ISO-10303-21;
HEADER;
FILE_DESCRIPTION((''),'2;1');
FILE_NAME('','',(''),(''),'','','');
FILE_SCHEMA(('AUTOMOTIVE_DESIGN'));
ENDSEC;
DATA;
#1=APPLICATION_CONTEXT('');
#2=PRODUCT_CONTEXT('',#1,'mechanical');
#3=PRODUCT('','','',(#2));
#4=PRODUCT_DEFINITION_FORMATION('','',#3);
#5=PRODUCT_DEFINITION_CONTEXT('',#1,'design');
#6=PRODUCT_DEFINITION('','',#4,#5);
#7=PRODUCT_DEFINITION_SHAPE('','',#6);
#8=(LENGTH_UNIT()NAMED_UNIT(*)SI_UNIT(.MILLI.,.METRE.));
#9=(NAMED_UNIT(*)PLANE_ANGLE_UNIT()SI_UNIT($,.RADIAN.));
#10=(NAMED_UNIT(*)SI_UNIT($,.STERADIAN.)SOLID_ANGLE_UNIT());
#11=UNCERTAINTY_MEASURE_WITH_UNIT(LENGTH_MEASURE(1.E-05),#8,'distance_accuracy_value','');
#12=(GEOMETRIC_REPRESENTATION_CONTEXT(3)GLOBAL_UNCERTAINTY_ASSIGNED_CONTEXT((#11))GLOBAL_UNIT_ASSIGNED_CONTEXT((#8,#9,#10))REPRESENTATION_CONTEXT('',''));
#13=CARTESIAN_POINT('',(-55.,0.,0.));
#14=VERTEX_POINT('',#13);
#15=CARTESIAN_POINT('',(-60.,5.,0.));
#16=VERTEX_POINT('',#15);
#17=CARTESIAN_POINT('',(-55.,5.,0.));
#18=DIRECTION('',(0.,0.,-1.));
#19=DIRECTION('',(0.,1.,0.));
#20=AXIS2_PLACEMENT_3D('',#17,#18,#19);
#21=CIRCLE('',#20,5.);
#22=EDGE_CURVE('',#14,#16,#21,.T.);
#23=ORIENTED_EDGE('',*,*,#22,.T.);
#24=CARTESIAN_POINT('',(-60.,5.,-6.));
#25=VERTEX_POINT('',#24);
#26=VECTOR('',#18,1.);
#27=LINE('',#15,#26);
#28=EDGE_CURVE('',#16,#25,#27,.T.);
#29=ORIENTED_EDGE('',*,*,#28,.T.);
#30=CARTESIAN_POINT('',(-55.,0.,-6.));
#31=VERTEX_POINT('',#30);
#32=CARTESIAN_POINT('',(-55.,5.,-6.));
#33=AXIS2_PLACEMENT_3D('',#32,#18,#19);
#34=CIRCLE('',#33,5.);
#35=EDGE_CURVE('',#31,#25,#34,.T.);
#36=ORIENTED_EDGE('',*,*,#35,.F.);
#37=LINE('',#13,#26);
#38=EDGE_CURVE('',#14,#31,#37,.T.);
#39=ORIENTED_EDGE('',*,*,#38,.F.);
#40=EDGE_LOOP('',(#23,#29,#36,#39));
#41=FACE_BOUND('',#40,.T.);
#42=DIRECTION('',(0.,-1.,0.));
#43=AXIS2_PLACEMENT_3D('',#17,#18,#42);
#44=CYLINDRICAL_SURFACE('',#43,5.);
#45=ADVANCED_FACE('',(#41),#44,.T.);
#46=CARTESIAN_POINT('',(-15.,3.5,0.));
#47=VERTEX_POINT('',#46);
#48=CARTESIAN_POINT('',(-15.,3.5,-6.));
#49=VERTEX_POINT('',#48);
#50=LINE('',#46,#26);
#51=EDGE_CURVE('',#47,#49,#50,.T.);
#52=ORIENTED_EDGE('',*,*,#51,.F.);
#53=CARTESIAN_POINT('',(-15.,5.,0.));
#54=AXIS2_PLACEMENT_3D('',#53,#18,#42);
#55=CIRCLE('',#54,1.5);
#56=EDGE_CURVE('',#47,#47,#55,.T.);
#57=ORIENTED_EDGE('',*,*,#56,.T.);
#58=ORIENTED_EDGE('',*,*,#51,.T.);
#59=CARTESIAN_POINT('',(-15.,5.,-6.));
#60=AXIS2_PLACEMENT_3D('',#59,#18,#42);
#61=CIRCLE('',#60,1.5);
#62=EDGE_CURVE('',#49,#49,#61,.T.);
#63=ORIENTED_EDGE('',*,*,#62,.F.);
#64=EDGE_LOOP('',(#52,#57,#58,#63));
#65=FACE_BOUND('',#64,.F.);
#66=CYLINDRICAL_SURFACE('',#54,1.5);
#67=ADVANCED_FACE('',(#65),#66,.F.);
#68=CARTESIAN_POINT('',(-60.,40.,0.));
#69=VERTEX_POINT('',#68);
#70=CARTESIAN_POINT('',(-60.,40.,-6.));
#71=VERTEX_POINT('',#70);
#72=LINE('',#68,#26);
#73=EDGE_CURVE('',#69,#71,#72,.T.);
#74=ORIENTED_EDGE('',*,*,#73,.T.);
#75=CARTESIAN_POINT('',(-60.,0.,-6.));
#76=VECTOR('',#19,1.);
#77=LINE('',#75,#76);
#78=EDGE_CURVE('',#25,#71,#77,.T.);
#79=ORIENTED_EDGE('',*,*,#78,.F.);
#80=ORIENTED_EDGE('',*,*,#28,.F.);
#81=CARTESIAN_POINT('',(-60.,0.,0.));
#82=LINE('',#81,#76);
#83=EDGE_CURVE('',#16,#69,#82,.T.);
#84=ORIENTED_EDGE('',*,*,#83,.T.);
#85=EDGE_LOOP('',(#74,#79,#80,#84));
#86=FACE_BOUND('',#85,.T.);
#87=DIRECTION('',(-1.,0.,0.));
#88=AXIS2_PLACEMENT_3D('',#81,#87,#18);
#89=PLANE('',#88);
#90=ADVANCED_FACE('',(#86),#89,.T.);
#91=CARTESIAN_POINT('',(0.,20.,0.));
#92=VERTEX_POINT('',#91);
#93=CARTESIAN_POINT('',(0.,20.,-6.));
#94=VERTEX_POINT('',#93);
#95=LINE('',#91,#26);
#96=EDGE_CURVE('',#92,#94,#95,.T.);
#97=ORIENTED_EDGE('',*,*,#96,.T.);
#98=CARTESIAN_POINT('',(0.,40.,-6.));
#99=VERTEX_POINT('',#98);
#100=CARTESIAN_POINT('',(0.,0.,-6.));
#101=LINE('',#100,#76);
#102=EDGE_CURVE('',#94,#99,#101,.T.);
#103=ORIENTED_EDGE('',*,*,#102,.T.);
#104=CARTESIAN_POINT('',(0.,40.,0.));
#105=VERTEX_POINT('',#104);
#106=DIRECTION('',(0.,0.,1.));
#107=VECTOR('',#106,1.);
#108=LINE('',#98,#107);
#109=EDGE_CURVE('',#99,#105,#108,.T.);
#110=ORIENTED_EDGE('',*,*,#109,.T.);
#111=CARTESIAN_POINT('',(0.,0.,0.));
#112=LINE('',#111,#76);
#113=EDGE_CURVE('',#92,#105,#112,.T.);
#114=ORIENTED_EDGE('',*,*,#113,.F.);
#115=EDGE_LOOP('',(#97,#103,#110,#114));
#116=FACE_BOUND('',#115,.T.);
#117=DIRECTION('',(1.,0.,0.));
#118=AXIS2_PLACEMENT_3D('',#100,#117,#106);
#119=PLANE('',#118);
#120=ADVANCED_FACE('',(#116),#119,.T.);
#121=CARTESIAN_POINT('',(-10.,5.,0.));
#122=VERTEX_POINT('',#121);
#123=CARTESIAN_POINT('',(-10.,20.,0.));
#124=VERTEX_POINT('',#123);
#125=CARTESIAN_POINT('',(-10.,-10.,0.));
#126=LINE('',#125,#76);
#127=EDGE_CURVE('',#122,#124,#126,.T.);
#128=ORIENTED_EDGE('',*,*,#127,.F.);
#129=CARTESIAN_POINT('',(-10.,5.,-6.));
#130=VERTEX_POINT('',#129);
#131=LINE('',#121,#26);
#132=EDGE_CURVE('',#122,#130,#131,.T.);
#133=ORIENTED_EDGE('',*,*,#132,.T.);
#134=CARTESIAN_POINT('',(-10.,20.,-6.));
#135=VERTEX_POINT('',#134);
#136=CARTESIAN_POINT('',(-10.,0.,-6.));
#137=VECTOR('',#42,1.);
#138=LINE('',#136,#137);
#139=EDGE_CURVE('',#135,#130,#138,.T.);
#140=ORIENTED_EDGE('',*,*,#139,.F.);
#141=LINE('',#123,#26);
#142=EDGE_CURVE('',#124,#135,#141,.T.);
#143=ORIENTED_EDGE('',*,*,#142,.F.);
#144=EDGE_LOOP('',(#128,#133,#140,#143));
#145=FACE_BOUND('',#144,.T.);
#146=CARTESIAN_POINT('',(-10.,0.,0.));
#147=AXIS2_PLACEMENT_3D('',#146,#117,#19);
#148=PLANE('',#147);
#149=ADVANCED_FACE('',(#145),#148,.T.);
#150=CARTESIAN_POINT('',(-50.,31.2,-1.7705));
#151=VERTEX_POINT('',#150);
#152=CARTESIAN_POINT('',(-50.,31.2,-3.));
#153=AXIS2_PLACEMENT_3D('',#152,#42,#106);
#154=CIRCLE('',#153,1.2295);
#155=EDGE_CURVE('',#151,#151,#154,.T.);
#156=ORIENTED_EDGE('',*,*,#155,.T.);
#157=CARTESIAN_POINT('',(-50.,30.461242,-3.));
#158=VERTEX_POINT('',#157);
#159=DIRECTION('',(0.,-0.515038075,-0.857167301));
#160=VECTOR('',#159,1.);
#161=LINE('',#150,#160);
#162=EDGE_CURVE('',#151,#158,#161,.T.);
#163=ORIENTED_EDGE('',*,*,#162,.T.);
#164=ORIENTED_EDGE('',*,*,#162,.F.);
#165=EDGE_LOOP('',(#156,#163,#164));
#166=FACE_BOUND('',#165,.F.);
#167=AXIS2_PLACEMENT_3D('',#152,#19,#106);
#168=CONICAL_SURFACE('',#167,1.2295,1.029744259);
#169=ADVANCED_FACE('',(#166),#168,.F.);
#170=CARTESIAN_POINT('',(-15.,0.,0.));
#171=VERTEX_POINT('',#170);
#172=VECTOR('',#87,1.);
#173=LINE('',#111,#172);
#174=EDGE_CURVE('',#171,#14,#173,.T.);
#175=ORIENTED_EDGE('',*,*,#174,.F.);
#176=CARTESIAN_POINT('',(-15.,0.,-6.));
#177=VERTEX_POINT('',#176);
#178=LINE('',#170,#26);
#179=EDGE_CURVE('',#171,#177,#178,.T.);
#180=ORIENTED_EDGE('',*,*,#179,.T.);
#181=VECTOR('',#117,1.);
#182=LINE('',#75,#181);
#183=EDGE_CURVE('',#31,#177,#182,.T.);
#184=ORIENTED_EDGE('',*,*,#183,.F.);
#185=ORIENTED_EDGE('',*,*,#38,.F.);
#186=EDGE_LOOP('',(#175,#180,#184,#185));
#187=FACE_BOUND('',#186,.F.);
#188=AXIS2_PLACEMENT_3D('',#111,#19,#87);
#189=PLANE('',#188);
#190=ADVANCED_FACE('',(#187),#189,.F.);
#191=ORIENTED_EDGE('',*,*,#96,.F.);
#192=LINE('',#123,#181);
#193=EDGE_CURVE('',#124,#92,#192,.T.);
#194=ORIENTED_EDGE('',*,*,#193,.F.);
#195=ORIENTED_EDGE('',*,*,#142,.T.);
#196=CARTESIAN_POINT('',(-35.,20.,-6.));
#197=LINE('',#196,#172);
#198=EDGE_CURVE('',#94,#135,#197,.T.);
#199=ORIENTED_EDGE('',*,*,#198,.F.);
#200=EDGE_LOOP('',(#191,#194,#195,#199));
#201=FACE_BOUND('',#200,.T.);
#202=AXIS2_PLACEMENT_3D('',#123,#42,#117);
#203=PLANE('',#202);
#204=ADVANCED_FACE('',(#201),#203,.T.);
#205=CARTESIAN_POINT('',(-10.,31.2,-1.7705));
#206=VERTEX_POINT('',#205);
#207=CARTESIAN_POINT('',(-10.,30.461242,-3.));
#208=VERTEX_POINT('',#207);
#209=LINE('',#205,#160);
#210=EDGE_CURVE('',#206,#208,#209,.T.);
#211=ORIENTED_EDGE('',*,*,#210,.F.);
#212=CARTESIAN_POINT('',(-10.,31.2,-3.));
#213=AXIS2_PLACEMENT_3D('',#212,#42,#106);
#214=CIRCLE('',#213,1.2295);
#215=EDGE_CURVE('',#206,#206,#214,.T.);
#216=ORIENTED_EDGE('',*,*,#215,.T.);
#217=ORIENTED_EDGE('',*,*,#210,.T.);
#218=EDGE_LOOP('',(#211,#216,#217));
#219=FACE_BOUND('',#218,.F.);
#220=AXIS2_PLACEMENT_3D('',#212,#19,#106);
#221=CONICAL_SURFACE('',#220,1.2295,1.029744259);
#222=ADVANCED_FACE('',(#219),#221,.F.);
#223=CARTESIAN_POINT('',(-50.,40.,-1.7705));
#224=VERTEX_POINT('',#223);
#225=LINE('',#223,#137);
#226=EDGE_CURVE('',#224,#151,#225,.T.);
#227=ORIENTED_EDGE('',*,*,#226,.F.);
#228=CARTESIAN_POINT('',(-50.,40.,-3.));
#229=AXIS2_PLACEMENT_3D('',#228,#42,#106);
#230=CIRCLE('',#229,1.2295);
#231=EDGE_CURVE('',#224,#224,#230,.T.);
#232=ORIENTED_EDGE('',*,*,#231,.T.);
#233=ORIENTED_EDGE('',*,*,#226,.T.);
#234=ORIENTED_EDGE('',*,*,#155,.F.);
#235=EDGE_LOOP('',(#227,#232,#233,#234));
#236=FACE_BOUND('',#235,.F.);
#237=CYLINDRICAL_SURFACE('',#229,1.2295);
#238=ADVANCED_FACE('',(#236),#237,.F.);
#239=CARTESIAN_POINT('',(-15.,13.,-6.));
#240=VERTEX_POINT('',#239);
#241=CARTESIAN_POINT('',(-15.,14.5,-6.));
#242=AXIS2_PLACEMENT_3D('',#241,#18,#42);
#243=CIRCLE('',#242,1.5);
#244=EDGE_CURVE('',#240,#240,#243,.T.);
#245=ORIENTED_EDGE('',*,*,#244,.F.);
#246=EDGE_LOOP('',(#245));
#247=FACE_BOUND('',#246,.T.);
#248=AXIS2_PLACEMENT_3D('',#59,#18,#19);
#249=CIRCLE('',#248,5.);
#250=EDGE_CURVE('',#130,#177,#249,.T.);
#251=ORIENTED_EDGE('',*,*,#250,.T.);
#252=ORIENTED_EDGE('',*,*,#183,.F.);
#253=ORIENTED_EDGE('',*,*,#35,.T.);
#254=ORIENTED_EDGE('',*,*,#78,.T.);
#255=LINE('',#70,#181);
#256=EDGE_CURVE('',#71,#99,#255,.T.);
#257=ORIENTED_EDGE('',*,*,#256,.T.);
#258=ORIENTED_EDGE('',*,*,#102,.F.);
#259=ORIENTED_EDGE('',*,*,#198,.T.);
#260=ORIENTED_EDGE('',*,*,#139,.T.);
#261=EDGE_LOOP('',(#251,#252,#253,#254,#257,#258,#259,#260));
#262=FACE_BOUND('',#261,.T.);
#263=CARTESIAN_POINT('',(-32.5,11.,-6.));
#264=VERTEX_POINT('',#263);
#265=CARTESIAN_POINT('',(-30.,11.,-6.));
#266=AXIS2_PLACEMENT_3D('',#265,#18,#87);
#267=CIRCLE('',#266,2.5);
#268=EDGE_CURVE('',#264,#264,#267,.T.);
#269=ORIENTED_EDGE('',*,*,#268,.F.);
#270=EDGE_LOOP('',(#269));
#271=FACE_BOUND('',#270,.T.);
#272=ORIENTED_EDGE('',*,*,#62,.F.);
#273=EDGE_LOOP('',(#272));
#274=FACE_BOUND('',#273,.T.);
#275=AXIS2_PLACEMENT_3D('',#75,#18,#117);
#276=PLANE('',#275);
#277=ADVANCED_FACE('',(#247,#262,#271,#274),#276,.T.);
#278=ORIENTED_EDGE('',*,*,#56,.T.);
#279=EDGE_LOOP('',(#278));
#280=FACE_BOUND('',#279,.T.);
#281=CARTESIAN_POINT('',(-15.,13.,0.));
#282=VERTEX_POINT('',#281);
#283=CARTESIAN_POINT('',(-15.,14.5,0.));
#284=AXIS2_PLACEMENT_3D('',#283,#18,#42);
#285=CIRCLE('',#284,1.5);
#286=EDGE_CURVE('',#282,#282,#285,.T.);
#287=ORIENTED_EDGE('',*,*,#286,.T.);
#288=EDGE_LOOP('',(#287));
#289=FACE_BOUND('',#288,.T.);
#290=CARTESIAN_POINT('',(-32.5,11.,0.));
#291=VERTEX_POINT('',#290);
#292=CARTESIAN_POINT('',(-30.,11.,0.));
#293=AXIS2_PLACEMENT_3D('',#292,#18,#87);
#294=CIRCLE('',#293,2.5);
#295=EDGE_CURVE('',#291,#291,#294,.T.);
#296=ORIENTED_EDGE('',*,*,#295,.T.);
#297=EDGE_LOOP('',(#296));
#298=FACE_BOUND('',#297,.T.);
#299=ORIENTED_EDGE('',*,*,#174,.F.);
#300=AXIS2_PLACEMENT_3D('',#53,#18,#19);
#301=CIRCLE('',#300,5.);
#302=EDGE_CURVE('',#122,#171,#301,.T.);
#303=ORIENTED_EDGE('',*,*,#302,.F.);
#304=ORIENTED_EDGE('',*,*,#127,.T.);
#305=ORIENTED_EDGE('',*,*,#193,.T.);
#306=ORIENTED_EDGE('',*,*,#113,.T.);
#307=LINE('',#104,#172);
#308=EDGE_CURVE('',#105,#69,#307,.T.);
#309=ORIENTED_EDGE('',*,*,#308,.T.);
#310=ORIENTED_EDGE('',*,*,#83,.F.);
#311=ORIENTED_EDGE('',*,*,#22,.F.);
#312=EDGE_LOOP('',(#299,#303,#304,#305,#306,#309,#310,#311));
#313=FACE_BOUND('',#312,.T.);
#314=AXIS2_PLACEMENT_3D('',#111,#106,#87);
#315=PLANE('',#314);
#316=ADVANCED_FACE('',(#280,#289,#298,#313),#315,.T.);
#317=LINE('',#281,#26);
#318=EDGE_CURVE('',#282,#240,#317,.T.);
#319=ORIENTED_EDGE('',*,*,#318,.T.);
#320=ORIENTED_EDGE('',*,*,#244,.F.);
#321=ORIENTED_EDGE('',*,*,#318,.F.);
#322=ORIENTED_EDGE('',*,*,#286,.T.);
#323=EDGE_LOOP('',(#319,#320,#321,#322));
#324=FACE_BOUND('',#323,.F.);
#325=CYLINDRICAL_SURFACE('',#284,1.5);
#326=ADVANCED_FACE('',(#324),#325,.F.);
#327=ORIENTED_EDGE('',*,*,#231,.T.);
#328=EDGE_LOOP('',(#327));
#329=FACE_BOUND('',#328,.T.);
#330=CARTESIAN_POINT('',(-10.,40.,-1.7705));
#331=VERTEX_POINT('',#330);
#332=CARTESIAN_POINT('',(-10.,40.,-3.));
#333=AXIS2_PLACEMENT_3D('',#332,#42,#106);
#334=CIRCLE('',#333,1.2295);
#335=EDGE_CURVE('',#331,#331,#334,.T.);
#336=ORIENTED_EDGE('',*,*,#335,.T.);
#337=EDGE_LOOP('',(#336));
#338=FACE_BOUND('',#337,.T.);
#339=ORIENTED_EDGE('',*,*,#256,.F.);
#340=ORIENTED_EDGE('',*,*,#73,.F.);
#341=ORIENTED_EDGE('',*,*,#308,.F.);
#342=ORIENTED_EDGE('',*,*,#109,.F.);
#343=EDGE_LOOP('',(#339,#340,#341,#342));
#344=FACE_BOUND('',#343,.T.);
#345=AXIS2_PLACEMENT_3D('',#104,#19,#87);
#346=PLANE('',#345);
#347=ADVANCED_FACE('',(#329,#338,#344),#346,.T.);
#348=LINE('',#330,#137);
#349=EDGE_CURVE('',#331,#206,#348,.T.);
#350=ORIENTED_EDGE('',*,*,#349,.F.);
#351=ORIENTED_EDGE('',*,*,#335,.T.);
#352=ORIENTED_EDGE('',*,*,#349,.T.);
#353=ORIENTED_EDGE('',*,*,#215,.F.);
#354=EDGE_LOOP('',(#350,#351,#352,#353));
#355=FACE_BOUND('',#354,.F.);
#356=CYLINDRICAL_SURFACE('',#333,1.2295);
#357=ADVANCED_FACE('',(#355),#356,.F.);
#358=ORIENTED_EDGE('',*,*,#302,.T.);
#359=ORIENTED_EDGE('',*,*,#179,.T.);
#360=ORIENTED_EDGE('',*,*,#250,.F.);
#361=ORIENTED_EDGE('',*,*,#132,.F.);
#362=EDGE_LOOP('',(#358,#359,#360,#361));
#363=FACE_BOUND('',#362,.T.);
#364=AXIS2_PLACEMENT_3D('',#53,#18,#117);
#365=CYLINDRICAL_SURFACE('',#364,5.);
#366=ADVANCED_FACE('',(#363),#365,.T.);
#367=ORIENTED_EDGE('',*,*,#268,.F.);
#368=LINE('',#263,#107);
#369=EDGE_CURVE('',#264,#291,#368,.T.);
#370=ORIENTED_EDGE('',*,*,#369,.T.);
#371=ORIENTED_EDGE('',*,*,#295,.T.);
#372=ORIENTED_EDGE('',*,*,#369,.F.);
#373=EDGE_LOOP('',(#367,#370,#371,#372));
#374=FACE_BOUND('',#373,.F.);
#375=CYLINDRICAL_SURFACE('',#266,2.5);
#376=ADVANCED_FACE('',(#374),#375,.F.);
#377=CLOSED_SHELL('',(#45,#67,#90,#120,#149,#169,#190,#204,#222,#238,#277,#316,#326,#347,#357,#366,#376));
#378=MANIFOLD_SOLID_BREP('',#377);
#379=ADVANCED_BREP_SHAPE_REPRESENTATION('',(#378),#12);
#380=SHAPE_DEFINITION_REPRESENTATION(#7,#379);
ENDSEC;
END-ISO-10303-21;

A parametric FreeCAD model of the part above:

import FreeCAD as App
import Part
import Sketcher
from FreeCAD import Vector
Q = App.Units.Quantity


def edges_at(feature, points):
    """Names of the edges that pass closest to the given points."""
    edges = feature.Shape.Edges
    near = lambda p: min(range(len(edges)), key=lambda i: edges[i].distToShape(Part.Vertex(*p))[0])
    return sorted({f"Edge{near(p) + 1}" for p in points})


def add_polygon(sketch, points):
    """Adds a closed chain of lines whose ends are joined by coincident constraints."""
    first, n = sketch.GeometryCount, len(points)
    for a, b in zip(points, points[1:] + points[:1]):
        sketch.addGeometry(Part.LineSegment(App.Vector(*a, 0), App.Vector(*b, 0)), False)
    for i in range(n):
        sketch.addConstraint(Sketcher.Constraint("Coincident", first + i, 2, first + (i + 1) % n, 1))

doc = App.newDocument("Part")
body = doc.addObject("PartDesign::Body", "Body")

# Sketch on XZ plane
sketch1 = body.newObject("Sketcher::SketchObject", "Sketch")
sketch1.AttachmentSupport = (doc.getObject("XZ_Plane"), [""])
sketch1.MapMode = "FlatFace"
add_polygon(sketch1, [(-60, 0), (0, 0), (0, -6), (-60, -6)])  # lines 0-3
sketch1.addConstraint(Sketcher.Constraint("Horizontal", 0))
sketch1.addConstraint(Sketcher.Constraint("Vertical", 1))
sketch1.addConstraint(Sketcher.Constraint("Horizontal", 2))
sketch1.addConstraint(Sketcher.Constraint("Vertical", 3))
sketch1.addConstraint(Sketcher.Constraint("Coincident", 0, 2, -1, 1))
sketch1.addConstraint(Sketcher.Constraint("DistanceX", 0, 1, 0, 2, Q("60 mm")))
sketch1.addConstraint(Sketcher.Constraint("DistanceY", 1, 2, 1, 1, Q("6 mm")))
pad1 = body.newObject("PartDesign::Pad", "Pad")
pad1.Profile = sketch1
pad1.Length = 40
pad1.Reversed = True

# Sketch on XY plane
sketch2 = body.newObject("Sketcher::SketchObject", "Sketch001")
sketch2.AttachmentSupport = (doc.getObject("XY_Plane"), [""])
sketch2.MapMode = "FlatFace"
sketch2.AttachmentOffset = App.Placement(Vector(0, 0, -6), App.Rotation())
sketch2.addGeometry(Part.Circle(Vector(-30, 11, 0), Vector(0, 0, 1), 2.5), False)
sketch2.addConstraint(Sketcher.Constraint("Diameter", 0, Q("5 mm")))
sketch2.addConstraint(Sketcher.Constraint("DistanceX", 0, 3, -1, 1, Q("30 mm")))
sketch2.addConstraint(Sketcher.Constraint("DistanceY", -1, 1, 0, 3, Q("11 mm")))
pocket1 = body.newObject("PartDesign::Pocket", "Pocket")
pocket1.Profile = sketch2
pocket1.Length = 10
pocket1.Reversed = True
doc.recompute()

fillet = body.newObject("PartDesign::Fillet", "Fillet")
fillet.Base = (pocket1, edges_at(pocket1, [(-60, 0, -3), (0, 0, -3)]))
fillet.Radius = 5

# Sketch on XY plane
sketch3 = body.newObject("Sketcher::SketchObject", "Sketch002")
sketch3.AttachmentSupport = (doc.getObject("XY_Plane"), [""])
sketch3.MapMode = "FlatFace"
sketch3.addGeometry(Part.Circle(Vector(-15, 5, 0), Vector(0, 0, 1), 1.5), False)
sketch3.addGeometry(Part.Circle(Vector(-15, 14.5, 0), Vector(0, 0, 1), 1.5), False)
sketch3.addConstraint(Sketcher.Constraint("Equal", 0, 1))
sketch3.addConstraint(Sketcher.Constraint("Vertical", 0, 3, 1, 3))
sketch3.addConstraint(Sketcher.Constraint("Diameter", 0, Q("3 mm")))
sketch3.addConstraint(Sketcher.Constraint("DistanceX", 0, 3, -1, 1, Q("15 mm")))
sketch3.addConstraint(Sketcher.Constraint("DistanceY", -1, 1, 0, 3, Q("5 mm")))
sketch3.addConstraint(Sketcher.Constraint("DistanceY", -1, 1, 1, 3, Q("14.5 mm")))
doc.recompute()
hole = body.newObject("PartDesign::Hole", "Hole")
hole.Profile = sketch3
hole.ThreadType = "None"
hole.Diameter = 3
hole.DepthType = "ThroughAll"

# Sketch on XZ plane
sketch4 = body.newObject("Sketcher::SketchObject", "Sketch003")
sketch4.AttachmentSupport = (doc.getObject("XZ_Plane"), [""])
sketch4.MapMode = "FlatFace"
sketch4.AttachmentOffset = App.Placement(Vector(0, 0, -40), App.Rotation())
sketch4.addGeometry(Part.Circle(Vector(-50, -3, 0), Vector(0, 0, 1), 1.2295), False)
sketch4.addGeometry(Part.Circle(Vector(-10, -3, 0), Vector(0, 0, 1), 1.2295), False)
sketch4.addConstraint(Sketcher.Constraint("Equal", 0, 1))
sketch4.addConstraint(Sketcher.Constraint("Horizontal", 0, 3, 1, 3))
sketch4.addConstraint(Sketcher.Constraint("Diameter", 0, Q("2.459 mm")))
sketch4.addConstraint(Sketcher.Constraint("DistanceX", 0, 3, -1, 1, Q("50 mm")))
sketch4.addConstraint(Sketcher.Constraint("DistanceY", 0, 3, -1, 1, Q("3 mm")))
sketch4.addConstraint(Sketcher.Constraint("DistanceX", 1, 3, -1, 1, Q("10 mm")))
doc.recompute()
hole2 = body.newObject("PartDesign::Hole", "Hole001")
hole2.Profile = sketch4
hole2.ThreadType = "None"
hole2.Diameter = 2.459
hole2.DepthType = "Dimension"
hole2.Depth = 8.8
hole2.DrillPoint = "Angled"
hole2.DrillPointAngle = 118
hole2.Reversed = True

# Sketch on XY plane
sketch5 = body.newObject("Sketcher::SketchObject", "Sketch004")
sketch5.AttachmentSupport = (doc.getObject("XY_Plane"), [""])
sketch5.MapMode = "FlatFace"
add_polygon(sketch5, [(-10, -10), (10, -10), (10, 20), (-10, 20)])  # lines 0-3
sketch5.addConstraint(Sketcher.Constraint("Horizontal", 0))
sketch5.addConstraint(Sketcher.Constraint("Vertical", 1))
sketch5.addConstraint(Sketcher.Constraint("Horizontal", 2))
sketch5.addConstraint(Sketcher.Constraint("Vertical", 3))
sketch5.addConstraint(Sketcher.Constraint("DistanceX", 0, 1, 0, 2, Q("20 mm")))
sketch5.addConstraint(Sketcher.Constraint("DistanceX", -1, 1, 0, 2, Q("10 mm")))
sketch5.addConstraint(Sketcher.Constraint("DistanceY", 0, 2, -1, 1, Q("10 mm")))
sketch5.addConstraint(Sketcher.Constraint("DistanceY", -1, 1, 1, 2, Q("20 mm")))
pocket2 = body.newObject("PartDesign::Pocket", "Pocket001")
pocket2.Profile = sketch5
pocket2.Length = 10
doc.recompute()

fillet2 = body.newObject("PartDesign::Fillet", "Fillet001")
fillet2.Base = (pocket2, edges_at(pocket2, [(-10, 0, -3)]))
fillet2.Radius = 5

doc.recompute()
